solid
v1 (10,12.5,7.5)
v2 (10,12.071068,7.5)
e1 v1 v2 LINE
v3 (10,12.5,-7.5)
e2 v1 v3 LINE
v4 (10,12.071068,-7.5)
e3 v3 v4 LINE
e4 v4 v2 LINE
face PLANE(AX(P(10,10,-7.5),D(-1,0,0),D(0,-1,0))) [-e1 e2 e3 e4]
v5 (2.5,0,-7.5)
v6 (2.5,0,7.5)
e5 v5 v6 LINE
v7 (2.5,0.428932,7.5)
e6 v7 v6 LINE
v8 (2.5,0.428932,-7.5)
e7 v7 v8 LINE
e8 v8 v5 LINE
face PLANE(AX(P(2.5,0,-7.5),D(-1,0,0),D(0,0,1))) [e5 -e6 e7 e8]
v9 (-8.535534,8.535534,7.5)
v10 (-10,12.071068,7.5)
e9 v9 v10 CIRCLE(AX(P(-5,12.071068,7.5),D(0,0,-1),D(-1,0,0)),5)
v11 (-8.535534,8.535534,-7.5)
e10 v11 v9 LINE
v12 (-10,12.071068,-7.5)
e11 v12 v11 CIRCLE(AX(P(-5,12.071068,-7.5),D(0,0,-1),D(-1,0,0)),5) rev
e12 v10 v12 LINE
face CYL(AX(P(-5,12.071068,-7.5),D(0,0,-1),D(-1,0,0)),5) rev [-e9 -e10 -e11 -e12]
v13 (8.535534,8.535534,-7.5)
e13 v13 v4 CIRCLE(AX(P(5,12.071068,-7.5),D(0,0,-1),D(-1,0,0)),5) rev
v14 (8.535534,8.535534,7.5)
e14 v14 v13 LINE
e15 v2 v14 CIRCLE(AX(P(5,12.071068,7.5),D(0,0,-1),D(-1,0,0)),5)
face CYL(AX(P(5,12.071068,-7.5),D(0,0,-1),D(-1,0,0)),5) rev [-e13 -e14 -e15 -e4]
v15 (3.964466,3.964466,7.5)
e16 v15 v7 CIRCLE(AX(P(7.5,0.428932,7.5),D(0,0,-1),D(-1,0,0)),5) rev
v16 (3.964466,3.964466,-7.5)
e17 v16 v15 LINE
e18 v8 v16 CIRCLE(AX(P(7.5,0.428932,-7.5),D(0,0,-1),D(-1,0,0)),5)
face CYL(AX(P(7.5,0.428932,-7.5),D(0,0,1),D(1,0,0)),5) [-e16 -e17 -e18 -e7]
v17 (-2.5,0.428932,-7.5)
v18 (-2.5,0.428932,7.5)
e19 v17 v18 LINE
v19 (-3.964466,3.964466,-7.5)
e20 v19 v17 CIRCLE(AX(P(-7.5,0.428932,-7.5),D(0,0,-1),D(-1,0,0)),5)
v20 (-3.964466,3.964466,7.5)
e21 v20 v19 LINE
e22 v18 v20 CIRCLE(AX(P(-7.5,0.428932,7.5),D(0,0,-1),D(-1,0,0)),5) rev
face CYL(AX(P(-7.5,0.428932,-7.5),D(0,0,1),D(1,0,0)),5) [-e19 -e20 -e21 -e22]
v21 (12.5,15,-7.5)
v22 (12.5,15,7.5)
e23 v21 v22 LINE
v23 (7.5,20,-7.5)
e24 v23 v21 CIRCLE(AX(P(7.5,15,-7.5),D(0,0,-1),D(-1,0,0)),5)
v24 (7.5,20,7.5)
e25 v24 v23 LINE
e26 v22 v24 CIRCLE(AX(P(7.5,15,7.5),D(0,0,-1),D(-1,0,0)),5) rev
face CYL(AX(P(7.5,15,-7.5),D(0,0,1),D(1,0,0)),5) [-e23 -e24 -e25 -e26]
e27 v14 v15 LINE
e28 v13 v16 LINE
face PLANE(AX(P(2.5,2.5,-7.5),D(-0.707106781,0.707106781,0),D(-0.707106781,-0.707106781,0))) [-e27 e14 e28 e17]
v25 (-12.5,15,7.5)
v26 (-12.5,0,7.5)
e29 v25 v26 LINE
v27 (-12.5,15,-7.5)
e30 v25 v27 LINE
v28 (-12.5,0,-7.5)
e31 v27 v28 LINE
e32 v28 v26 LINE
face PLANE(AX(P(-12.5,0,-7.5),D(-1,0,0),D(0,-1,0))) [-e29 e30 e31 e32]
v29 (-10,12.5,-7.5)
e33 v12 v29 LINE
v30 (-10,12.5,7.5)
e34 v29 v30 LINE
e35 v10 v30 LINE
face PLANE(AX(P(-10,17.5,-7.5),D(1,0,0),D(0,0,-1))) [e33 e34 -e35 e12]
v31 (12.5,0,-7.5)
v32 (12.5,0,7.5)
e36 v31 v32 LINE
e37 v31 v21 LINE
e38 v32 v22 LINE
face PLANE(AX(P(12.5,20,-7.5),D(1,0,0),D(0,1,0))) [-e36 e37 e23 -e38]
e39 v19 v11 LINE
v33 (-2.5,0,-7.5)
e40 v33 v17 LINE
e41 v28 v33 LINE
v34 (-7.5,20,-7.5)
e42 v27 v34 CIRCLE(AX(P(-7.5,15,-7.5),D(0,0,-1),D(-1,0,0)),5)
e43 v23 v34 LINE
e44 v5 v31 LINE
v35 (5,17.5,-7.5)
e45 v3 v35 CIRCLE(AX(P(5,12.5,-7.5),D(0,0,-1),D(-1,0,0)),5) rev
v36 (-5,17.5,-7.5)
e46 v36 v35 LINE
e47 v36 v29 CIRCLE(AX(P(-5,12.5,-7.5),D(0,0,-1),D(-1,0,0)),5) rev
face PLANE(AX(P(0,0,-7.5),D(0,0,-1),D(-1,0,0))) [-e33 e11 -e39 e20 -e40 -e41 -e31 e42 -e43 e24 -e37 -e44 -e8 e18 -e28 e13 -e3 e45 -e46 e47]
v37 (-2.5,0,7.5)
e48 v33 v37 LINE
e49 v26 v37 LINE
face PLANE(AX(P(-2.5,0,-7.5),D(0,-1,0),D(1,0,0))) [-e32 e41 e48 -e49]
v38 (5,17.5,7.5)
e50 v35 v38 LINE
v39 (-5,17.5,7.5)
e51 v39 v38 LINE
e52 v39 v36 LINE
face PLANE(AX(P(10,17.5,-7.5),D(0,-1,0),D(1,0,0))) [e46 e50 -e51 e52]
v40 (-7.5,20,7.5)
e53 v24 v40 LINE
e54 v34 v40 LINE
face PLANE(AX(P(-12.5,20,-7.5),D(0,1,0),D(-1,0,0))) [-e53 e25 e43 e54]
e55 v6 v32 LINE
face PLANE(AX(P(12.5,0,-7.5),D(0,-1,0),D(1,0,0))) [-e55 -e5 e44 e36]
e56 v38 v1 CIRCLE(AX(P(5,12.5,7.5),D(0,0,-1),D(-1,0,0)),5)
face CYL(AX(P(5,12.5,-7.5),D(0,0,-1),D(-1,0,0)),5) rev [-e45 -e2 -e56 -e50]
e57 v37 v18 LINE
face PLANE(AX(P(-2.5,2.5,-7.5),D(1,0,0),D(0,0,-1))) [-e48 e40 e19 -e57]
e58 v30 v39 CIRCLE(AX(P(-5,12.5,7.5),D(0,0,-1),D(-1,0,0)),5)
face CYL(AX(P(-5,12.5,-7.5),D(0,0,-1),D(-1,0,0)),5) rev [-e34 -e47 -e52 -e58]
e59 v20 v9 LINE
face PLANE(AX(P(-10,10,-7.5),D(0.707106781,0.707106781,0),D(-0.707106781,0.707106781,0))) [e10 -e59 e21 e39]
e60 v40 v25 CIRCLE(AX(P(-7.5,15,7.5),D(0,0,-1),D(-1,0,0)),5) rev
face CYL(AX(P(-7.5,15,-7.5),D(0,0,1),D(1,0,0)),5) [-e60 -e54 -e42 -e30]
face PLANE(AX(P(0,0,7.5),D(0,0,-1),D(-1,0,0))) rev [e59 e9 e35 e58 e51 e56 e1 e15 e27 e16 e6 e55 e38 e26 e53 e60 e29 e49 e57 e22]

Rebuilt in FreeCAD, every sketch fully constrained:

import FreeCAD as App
import Part
import Sketcher
from FreeCAD import Vector
Q = App.Units.Quantity


def edges_at(feature, points):
    """Names of the edges that pass closest to the given points."""
    edges = feature.Shape.Edges
    near = lambda p: min(range(len(edges)), key=lambda i: edges[i].distToShape(Part.Vertex(*p))[0])
    return sorted({f"Edge{near(p) + 1}" for p in points})

doc = App.newDocument("Part")
body = doc.addObject("PartDesign::Body", "Body")

# Sketch on XY plane
sketch1 = body.newObject("Sketcher::SketchObject", "Sketch")
sketch1.AttachmentSupport = (doc.getObject("XY_Plane"), [""])
sketch1.MapMode = "FlatFace"
sketch1.addGeometry([
    Part.LineSegment(Vector(12.5, 20, 0), Vector(-12.5, 20, 0)),  # 0
    Part.LineSegment(Vector(-12.5, 20, 0), Vector(-12.5, 0, 0)),  # 1
    Part.LineSegment(Vector(-12.5, 0, 0), Vector(-2.5, 0, 0)),  # 2
    Part.LineSegment(Vector(-2.5, 0, 0), Vector(-2.5, 2.5, 0)),  # 3
    Part.LineSegment(Vector(-2.5, 2.5, 0), Vector(-10, 10, 0)),  # 4
    Part.LineSegment(Vector(-10, 10, 0), Vector(-10, 17.5, 0)),  # 5
    Part.LineSegment(Vector(-10, 17.5, 0), Vector(10, 17.5, 0)),  # 6
    Part.LineSegment(Vector(10, 17.5, 0), Vector(10, 10, 0)),  # 7
    Part.LineSegment(Vector(10, 10, 0), Vector(2.5, 2.5, 0)),  # 8
    Part.LineSegment(Vector(2.5, 2.5, 0), Vector(2.5, 0, 0)),  # 9
    Part.LineSegment(Vector(2.5, 0, 0), Vector(12.5, 0, 0)),  # 10
    Part.LineSegment(Vector(12.5, 0, 0), Vector(12.5, 20, 0)),  # 11
], False)
sketch1.addConstraint([
    Sketcher.Constraint("Coincident", 0, 2, 1, 1),
    Sketcher.Constraint("Coincident", 1, 2, 2, 1),
    Sketcher.Constraint("Coincident", 2, 2, 3, 1),
    Sketcher.Constraint("Coincident", 3, 2, 4, 1),
    Sketcher.Constraint("Coincident", 4, 2, 5, 1),
    Sketcher.Constraint("Coincident", 5, 2, 6, 1),
    Sketcher.Constraint("Coincident", 6, 2, 7, 1),
    Sketcher.Constraint("Coincident", 7, 2, 8, 1),
    Sketcher.Constraint("Coincident", 8, 2, 9, 1),
    Sketcher.Constraint("Coincident", 9, 2, 10, 1),
    Sketcher.Constraint("Coincident", 10, 2, 11, 1),
    Sketcher.Constraint("Coincident", 11, 2, 0, 1),
    Sketcher.Constraint("Horizontal", 0),
    Sketcher.Constraint("Vertical", 1),
    Sketcher.Constraint("Horizontal", 2),
    Sketcher.Constraint("Vertical", 3),
    Sketcher.Constraint("Vertical", 5),
    Sketcher.Constraint("Horizontal", 6),
    Sketcher.Constraint("Vertical", 7),
    Sketcher.Constraint("Vertical", 9),
    Sketcher.Constraint("Horizontal", 10),
    Sketcher.Constraint("Vertical", 11),
    Sketcher.Constraint("Symmetric", 2, 2, 9, 2, -1, 1),
    Sketcher.Constraint("Symmetric", 4, 2, 7, 2, -2),
    Sketcher.Constraint("Symmetric", 1, 2, 10, 2, -2),
    Sketcher.Constraint("Perpendicular", 4, 8),
    Sketcher.Constraint("Horizontal", 3, 2, 8, 2),
    Sketcher.Constraint("Equal", 6, 1),
    Sketcher.Constraint("DistanceX", 0, 2, 0, 1, Q("25 mm")),
    Sketcher.Constraint("DistanceX", 2, 1, 2, 2, Q("10 mm")),
    Sketcher.Constraint("DistanceX", 6, 1, 6, 2, Q("20 mm")),
    Sketcher.Constraint("DistanceY", 3, 1, 3, 2, Q("2.5 mm")),
    Sketcher.Constraint("DistanceY", 5, 1, 5, 2, Q("7.5 mm")),
])
pad1 = body.newObject("PartDesign::Pad", "Pad")
pad1.Profile = sketch1
pad1.Type = "TwoLengths"
pad1.Length = 7.5
pad1.Length2 = 7.5
doc.recompute()

fillet = body.newObject("PartDesign::Fillet", "Fillet")
fillet.Base = (pad1, edges_at(pad1, [
    (-12.5, 20, 0),
    (12.5, 20, 0),
    (2.5, 2.5, 0),
    (10, 10, 0),
    (10, 17.5, 0),
    (-10, 17.5, 0),
    (-10, 10, 0),
    (-2.5, 2.5, 0),
]))
fillet.Radius = 5

doc.recompute()
